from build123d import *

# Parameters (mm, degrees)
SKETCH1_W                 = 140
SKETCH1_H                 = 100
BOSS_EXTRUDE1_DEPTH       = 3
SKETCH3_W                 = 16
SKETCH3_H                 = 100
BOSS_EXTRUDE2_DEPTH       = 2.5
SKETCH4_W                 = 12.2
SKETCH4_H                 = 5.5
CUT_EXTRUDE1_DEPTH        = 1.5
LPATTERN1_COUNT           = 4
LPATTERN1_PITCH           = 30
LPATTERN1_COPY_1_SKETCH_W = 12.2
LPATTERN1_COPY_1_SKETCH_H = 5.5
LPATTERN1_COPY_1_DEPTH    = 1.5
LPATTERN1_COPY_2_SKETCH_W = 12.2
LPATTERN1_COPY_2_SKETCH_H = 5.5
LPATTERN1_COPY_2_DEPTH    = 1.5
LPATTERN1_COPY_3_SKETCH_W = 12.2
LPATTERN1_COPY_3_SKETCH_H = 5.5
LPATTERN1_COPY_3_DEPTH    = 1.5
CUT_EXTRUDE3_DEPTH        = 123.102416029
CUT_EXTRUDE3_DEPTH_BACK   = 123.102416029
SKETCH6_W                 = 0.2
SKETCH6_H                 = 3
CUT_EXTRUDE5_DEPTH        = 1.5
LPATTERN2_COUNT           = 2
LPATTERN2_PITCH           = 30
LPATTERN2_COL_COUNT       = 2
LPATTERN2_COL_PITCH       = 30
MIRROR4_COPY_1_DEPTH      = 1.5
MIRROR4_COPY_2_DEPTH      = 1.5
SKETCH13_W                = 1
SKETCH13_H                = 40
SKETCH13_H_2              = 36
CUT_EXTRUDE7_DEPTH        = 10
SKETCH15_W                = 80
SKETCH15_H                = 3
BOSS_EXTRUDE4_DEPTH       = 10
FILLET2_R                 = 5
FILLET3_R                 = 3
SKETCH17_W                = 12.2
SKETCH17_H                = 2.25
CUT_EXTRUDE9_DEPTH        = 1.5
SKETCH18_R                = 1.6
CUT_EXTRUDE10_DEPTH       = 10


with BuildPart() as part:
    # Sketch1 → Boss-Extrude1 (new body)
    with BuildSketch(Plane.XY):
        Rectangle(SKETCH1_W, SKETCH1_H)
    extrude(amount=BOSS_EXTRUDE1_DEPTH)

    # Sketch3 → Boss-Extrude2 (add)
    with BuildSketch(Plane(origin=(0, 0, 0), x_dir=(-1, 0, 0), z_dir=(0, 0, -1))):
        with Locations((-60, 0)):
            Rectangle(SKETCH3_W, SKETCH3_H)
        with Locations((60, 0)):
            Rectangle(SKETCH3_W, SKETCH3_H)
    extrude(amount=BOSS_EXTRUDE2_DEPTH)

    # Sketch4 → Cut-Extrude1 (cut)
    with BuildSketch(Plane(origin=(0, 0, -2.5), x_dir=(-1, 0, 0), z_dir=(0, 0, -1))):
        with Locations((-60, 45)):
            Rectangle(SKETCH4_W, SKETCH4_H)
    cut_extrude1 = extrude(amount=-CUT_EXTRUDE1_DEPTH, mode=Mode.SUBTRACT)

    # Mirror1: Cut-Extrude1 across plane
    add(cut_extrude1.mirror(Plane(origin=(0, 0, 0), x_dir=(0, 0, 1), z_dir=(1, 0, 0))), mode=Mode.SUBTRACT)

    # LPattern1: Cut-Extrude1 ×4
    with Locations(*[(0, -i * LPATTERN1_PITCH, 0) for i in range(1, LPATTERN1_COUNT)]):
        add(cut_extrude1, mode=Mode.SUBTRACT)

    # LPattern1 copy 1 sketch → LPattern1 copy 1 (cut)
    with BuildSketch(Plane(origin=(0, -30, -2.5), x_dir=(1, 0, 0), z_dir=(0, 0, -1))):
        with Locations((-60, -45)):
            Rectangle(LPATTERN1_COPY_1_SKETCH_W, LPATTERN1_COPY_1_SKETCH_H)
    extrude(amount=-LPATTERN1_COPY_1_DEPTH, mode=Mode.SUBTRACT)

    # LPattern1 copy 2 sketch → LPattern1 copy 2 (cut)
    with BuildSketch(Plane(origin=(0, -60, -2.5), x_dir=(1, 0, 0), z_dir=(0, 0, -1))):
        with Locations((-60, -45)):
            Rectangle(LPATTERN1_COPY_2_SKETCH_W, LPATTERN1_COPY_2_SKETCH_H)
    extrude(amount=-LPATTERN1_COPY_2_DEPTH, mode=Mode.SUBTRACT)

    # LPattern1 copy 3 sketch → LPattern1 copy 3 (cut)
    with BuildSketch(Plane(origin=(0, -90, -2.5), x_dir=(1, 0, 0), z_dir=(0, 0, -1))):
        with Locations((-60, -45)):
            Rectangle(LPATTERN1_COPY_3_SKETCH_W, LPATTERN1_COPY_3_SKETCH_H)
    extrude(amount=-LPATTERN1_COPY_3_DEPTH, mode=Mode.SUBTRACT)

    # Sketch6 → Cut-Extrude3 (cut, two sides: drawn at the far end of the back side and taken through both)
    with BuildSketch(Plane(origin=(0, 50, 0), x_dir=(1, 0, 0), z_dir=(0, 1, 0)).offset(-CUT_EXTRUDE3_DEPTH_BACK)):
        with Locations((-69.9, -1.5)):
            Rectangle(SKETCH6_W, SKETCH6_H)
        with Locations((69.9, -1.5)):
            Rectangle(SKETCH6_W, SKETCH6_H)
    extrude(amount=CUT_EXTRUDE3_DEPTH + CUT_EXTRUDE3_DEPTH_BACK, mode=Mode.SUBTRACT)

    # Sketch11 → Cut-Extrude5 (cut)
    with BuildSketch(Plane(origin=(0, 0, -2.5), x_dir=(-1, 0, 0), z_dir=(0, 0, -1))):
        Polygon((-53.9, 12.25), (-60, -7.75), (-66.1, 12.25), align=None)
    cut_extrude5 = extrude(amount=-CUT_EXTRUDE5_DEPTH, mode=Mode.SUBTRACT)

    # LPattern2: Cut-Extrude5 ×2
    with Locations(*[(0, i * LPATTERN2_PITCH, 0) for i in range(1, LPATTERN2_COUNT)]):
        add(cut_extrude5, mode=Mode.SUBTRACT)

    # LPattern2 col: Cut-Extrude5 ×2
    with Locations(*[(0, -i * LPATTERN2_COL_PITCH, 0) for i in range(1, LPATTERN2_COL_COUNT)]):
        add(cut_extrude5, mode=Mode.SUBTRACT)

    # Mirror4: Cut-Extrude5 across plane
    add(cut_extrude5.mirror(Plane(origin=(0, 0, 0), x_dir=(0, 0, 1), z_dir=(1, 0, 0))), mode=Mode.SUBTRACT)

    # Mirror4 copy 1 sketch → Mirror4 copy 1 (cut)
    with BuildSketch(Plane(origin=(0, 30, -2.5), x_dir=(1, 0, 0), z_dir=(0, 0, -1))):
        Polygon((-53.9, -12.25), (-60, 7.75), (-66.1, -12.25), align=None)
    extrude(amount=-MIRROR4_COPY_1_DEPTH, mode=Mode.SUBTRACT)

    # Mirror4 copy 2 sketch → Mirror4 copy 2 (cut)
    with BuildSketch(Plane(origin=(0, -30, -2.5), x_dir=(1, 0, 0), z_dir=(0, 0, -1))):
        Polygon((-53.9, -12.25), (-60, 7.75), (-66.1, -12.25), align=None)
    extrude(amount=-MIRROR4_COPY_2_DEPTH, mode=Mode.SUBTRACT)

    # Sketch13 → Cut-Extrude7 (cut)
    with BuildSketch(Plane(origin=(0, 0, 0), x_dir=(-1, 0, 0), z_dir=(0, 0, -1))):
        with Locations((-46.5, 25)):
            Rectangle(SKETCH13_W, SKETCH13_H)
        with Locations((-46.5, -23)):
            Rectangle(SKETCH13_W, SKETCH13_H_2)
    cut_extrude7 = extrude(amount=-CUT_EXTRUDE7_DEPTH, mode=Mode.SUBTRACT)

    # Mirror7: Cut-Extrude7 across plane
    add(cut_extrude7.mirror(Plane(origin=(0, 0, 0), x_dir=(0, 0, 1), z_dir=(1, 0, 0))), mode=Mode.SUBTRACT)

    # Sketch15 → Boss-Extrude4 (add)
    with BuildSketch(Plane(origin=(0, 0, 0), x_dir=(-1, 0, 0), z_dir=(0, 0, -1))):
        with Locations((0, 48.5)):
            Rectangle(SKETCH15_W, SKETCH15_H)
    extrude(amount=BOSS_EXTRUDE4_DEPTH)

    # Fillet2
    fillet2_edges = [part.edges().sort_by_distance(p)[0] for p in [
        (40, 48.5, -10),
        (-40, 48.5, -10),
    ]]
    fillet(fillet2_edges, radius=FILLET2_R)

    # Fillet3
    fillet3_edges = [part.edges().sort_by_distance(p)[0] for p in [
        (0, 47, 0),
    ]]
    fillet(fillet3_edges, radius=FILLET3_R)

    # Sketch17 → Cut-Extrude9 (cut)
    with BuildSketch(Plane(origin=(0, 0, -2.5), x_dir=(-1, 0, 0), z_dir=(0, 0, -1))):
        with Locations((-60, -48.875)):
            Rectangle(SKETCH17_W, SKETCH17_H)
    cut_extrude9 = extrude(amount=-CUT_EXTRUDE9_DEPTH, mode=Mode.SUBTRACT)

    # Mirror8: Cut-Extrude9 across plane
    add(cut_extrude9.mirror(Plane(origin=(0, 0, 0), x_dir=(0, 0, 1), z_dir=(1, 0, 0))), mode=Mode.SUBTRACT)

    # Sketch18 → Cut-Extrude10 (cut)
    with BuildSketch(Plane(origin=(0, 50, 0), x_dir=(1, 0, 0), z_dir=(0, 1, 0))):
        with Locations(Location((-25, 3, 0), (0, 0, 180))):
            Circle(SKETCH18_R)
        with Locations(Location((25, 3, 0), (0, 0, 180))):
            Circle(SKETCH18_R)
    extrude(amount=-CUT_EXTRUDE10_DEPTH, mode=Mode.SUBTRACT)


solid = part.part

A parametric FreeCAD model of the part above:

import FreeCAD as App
import Part
import Sketcher
Q = App.Units.Quantity


def edges_at(feature, points):
    """Names of the edges that pass closest to the given points."""
    edges = feature.Shape.Edges
    near = lambda p: min(range(len(edges)), key=lambda i: edges[i].distToShape(Part.Vertex(*p))[0])
    return sorted({f"Edge{near(p) + 1}" for p in points})


def add_polygon(sketch, points):
    """Adds a closed chain of lines whose ends are joined by coincident constraints."""
    first, n = sketch.GeometryCount, len(points)
    for a, b in zip(points, points[1:] + points[:1]):
        sketch.addGeometry(Part.LineSegment(App.Vector(*a, 0), App.Vector(*b, 0)), False)
    for i in range(n):
        sketch.addConstraint(Sketcher.Constraint("Coincident", first + i, 2, first + (i + 1) % n, 1))

doc = App.newDocument("Part")
body = doc.addObject("PartDesign::Body", "Body")

# Sketch on XY plane
sketch1 = body.newObject("Sketcher::SketchObject", "Sketch")
sketch1.AttachmentSupport = (doc.getObject("XY_Plane"), [""])
sketch1.MapMode = "FlatFace"
add_polygon(sketch1, [(-70, 50), (-70, -50), (70, -50), (70, 50)])  # lines 0-3
sketch1.addConstraint([
    Sketcher.Constraint("Vertical", 0),
    Sketcher.Constraint("Horizontal", 1),
    Sketcher.Constraint("Vertical", 2),
    Sketcher.Constraint("Horizontal", 3),
    Sketcher.Constraint("Symmetric", 0, 2, 2, 2, -1, 1),
    Sketcher.Constraint("DistanceX", 1, 1, 1, 2, Q("140 mm")),
    Sketcher.Constraint("DistanceY", 0, 2, 0, 1, Q("100 mm")),
])
pad1 = body.newObject("PartDesign::Pad", "Pad")
pad1.Profile = sketch1
pad1.Length = 3

# Sketch on XY plane
sketch2 = body.newObject("Sketcher::SketchObject", "Sketch001")
sketch2.AttachmentSupport = (doc.getObject("XY_Plane"), [""])
sketch2.MapMode = "FlatFace"
add_polygon(sketch2, [(68, 50), (68, -50), (52, -50), (52, 50)])  # lines 0-3
add_polygon(sketch2, [(-52, 50), (-52, -50), (-68, -50), (-68, 50)])  # lines 4-7
sketch2.addConstraint([
    Sketcher.Constraint("Vertical", 0),
    Sketcher.Constraint("Horizontal", 1),
    Sketcher.Constraint("Vertical", 2),
    Sketcher.Constraint("Horizontal", 3),
    Sketcher.Constraint("Vertical", 4),
    Sketcher.Constraint("Horizontal", 5),
    Sketcher.Constraint("Vertical", 6),
    Sketcher.Constraint("Horizontal", 7),
    Sketcher.Constraint("Symmetric", 2, 2, 4, 2, -1, 1),
    Sketcher.Constraint("Symmetric", 0, 2, 6, 2, -1, 1),
    Sketcher.Constraint("Horizontal", 1, 2, 4, 2),
    Sketcher.Constraint("DistanceX", 1, 2, 1, 1, Q("16 mm")),
    Sketcher.Constraint("DistanceY", 0, 2, 0, 1, Q("100 mm")),
    Sketcher.Constraint("DistanceX", -1, 1, 0, 2, Q("68 mm")),
])
pad2 = body.newObject("PartDesign::Pad", "Pad001")
pad2.Profile = sketch2
pad2.Length = 2.5
pad2.Reversed = True

# Sketch on XY plane
sketch3 = body.newObject("Sketcher::SketchObject", "Sketch002")
sketch3.AttachmentSupport = (doc.getObject("XY_Plane"), [""])
sketch3.MapMode = "FlatFace"
sketch3.AttachmentOffset = App.Placement(App.Vector(0, 0, -2.5), App.Rotation())
add_polygon(sketch3, [(66.1, 47.75), (66.1, 42.25), (53.9, 42.25), (53.9, 47.75)])  # lines 0-3
sketch3.addConstraint([
    Sketcher.Constraint("Vertical", 0),
    Sketcher.Constraint("Horizontal", 1),
    Sketcher.Constraint("Vertical", 2),
    Sketcher.Constraint("Horizontal", 3),
    Sketcher.Constraint("DistanceX", 1, 2, 1, 1, Q("12.2 mm")),
    Sketcher.Constraint("DistanceY", 0, 2, 0, 1, Q("5.5 mm")),
    Sketcher.Constraint("DistanceX", -1, 1, 0, 2, Q("66.1 mm")),
    Sketcher.Constraint("DistanceY", -1, 1, 0, 2, Q("42.25 mm")),
])
pocket1 = body.newObject("PartDesign::Pocket", "Pocket")
pocket1.Profile = sketch3
pocket1.Length = 1.5
pocket1.Reversed = True
doc.recompute()

mirrored = body.newObject("PartDesign::Mirrored", "Mirrored")
mirrored.Originals = [pocket1]
mirrored.MirrorPlane = (doc.getObject("YZ_Plane"), [""])
body.Tip = mirrored
doc.recompute()

linearpattern = body.newObject("PartDesign::LinearPattern", "LinearPattern")
linearpattern.Originals = [pocket1]
linearpattern.Direction = (doc.getObject("Y_Axis"), [""])
linearpattern.Mode = "offset"
linearpattern.Offset = 30
linearpattern.Occurrences = 4
linearpattern.Reversed = True
body.Tip = linearpattern

# Sketch on XY plane
sketch4 = body.newObject("Sketcher::SketchObject", "Sketch003")
sketch4.AttachmentSupport = (doc.getObject("XY_Plane"), [""])
sketch4.MapMode = "FlatFace"
sketch4.AttachmentOffset = App.Placement(App.Vector(0, 0, -2.5), App.Rotation())
add_polygon(sketch4, [(-66.1, 12.25), (-66.1, 17.75), (-53.9, 17.75), (-53.9, 12.25)])  # lines 0-3
sketch4.addConstraint([
    Sketcher.Constraint("Vertical", 0),
    Sketcher.Constraint("Horizontal", 1),
    Sketcher.Constraint("Vertical", 2),
    Sketcher.Constraint("Horizontal", 3),
    Sketcher.Constraint("DistanceX", 1, 1, 1, 2, Q("12.2 mm")),
    Sketcher.Constraint("DistanceY", 0, 1, 0, 2, Q("5.5 mm")),
    Sketcher.Constraint("DistanceX", 0, 2, -1, 1, Q("66.1 mm")),
    Sketcher.Constraint("DistanceY", -1, 1, 0, 2, Q("17.75 mm")),
])
pocket2 = body.newObject("PartDesign::Pocket", "Pocket001")
pocket2.Profile = sketch4
pocket2.Length = 1.5
pocket2.Reversed = True

# Sketch on XY plane
sketch5 = body.newObject("Sketcher::SketchObject", "Sketch004")
sketch5.AttachmentSupport = (doc.getObject("XY_Plane"), [""])
sketch5.MapMode = "FlatFace"
sketch5.AttachmentOffset = App.Placement(App.Vector(0, 0, -2.5), App.Rotation())
add_polygon(sketch5, [(-66.1, -17.75), (-66.1, -12.25), (-53.9, -12.25), (-53.9, -17.75)])  # lines 0-3
sketch5.addConstraint([
    Sketcher.Constraint("Vertical", 0),
    Sketcher.Constraint("Horizontal", 1),
    Sketcher.Constraint("Vertical", 2),
    Sketcher.Constraint("Horizontal", 3),
    Sketcher.Constraint("DistanceX", 1, 1, 1, 2, Q("12.2 mm")),
    Sketcher.Constraint("DistanceY", 0, 1, 0, 2, Q("5.5 mm")),
    Sketcher.Constraint("DistanceX", 0, 2, -1, 1, Q("66.1 mm")),
    Sketcher.Constraint("DistanceY", 0, 2, -1, 1, Q("12.25 mm")),
])
pocket3 = body.newObject("PartDesign::Pocket", "Pocket002")
pocket3.Profile = sketch5
pocket3.Length = 1.5
pocket3.Reversed = True

# Sketch on XY plane
sketch6 = body.newObject("Sketcher::SketchObject", "Sketch005")
sketch6.AttachmentSupport = (doc.getObject("XY_Plane"), [""])
sketch6.MapMode = "FlatFace"
sketch6.AttachmentOffset = App.Placement(App.Vector(0, 0, -2.5), App.Rotation())
add_polygon(sketch6, [(-66.1, -47.75), (-66.1, -42.25), (-53.9, -42.25), (-53.9, -47.75)])  # lines 0-3
sketch6.addConstraint([
    Sketcher.Constraint("Vertical", 0),
    Sketcher.Constraint("Horizontal", 1),
    Sketcher.Constraint("Vertical", 2),
    Sketcher.Constraint("Horizontal", 3),
    Sketcher.Constraint("DistanceX", 1, 1, 1, 2, Q("12.2 mm")),
    Sketcher.Constraint("DistanceY", 0, 1, 0, 2, Q("5.5 mm")),
    Sketcher.Constraint("DistanceX", 0, 2, -1, 1, Q("66.1 mm")),
    Sketcher.Constraint("DistanceY", 0, 2, -1, 1, Q("42.25 mm")),
])
pocket4 = body.newObject("PartDesign::Pocket", "Pocket003")
pocket4.Profile = sketch6
pocket4.Length = 1.5
pocket4.Reversed = True

# Sketch on XZ plane
sketch7 = body.newObject("Sketcher::SketchObject", "Sketch006")
sketch7.AttachmentSupport = (doc.getObject("XZ_Plane"), [""])
sketch7.MapMode = "FlatFace"
sketch7.AttachmentOffset = App.Placement(App.Vector(0, 0, -50), App.Rotation())
add_polygon(sketch7, [(-70, 0), (-70, 3), (-69.8, 3), (-69.8, 0)])  # lines 0-3
add_polygon(sketch7, [(69.8, 0), (69.8, 3), (70, 3), (70, 0)])  # lines 4-7
sketch7.addConstraint([
    Sketcher.Constraint("Vertical", 0),
    Sketcher.Constraint("Horizontal", 1),
    Sketcher.Constraint("Vertical", 2),
    Sketcher.Constraint("Horizontal", 3),
    Sketcher.Constraint("Vertical", 4),
    Sketcher.Constraint("Horizontal", 5),
    Sketcher.Constraint("Vertical", 6),
    Sketcher.Constraint("Horizontal", 7),
    Sketcher.Constraint("Symmetric", 3, 2, 6, 2, -1, 1),
    Sketcher.Constraint("Symmetric", 1, 2, 4, 2, -2),
    Sketcher.Constraint("PointOnObject", 2, 2, -1),
    Sketcher.Constraint("DistanceY", 0, 1, 0, 2, Q("3 mm")),
    Sketcher.Constraint("DistanceX", 1, 1, 1, 2, Q("0.2 mm")),
    Sketcher.Constraint("DistanceX", 0, 2, -1, 1, Q("70 mm")),
])
pocket5 = body.newObject("PartDesign::Pocket", "Pocket004")
pocket5.Profile = sketch7
pocket5.Type = "ThroughAll"
pocket5.Midplane = True

# Sketch on XY plane
sketch8 = body.newObject("Sketcher::SketchObject", "Sketch007")
sketch8.AttachmentSupport = (doc.getObject("XY_Plane"), [""])
sketch8.MapMode = "FlatFace"
sketch8.AttachmentOffset = App.Placement(App.Vector(0, 0, -2.5), App.Rotation())
add_polygon(sketch8, [(60, -7.75), (53.9, 12.25), (66.1, 12.25)])  # lines 0-2
sketch8.addConstraint([
    Sketcher.Constraint("Horizontal", 1),
    Sketcher.Constraint("Equal", 0, 2),
    Sketcher.Constraint("DistanceX", 1, 1, 1, 2, Q("12.2 mm")),
    Sketcher.Constraint("DistanceX", -1, 1, 2, 2, Q("60 mm")),
    Sketcher.Constraint("DistanceY", 2, 2, 1, 2, Q("20 mm")),
    Sketcher.Constraint("DistanceY", -1, 1, 0, 2, Q("12.25 mm")),
])
pocket6 = body.newObject("PartDesign::Pocket", "Pocket005")
pocket6.Profile = sketch8
pocket6.Length = 1.5
pocket6.Reversed = True
doc.recompute()

linearpattern2 = body.newObject("PartDesign::LinearPattern", "LinearPattern001")
linearpattern2.Originals = [pocket6]
linearpattern2.Direction = (doc.getObject("Y_Axis"), [""])
linearpattern2.Mode = "offset"
linearpattern2.Offset = 30
linearpattern2.Occurrences = 2
body.Tip = linearpattern2
doc.recompute()

linearpattern3 = body.newObject("PartDesign::LinearPattern", "LinearPattern002")
linearpattern3.Originals = [pocket6]
linearpattern3.Direction = (doc.getObject("Y_Axis"), [""])
linearpattern3.Mode = "offset"
linearpattern3.Offset = 30
linearpattern3.Occurrences = 2
linearpattern3.Reversed = True
body.Tip = linearpattern3
doc.recompute()

mirrored2 = body.newObject("PartDesign::Mirrored", "Mirrored001")
mirrored2.Originals = [pocket6]
mirrored2.MirrorPlane = (doc.getObject("YZ_Plane"), [""])
body.Tip = mirrored2

# Sketch on XY plane
sketch9 = body.newObject("Sketcher::SketchObject", "Sketch008")
sketch9.AttachmentSupport = (doc.getObject("XY_Plane"), [""])
sketch9.MapMode = "FlatFace"
sketch9.AttachmentOffset = App.Placement(App.Vector(0, 0, -2.5), App.Rotation())
add_polygon(sketch9, [(-53.9, 42.25), (-60, 22.25), (-66.1, 42.25)])  # lines 0-2
sketch9.addConstraint([
    Sketcher.Constraint("Horizontal", 2),
    Sketcher.Constraint("Equal", 0, 1),
    Sketcher.Constraint("DistanceX", 2, 1, 2, 2, Q("12.2 mm")),
    Sketcher.Constraint("DistanceX", 0, 2, -1, 1, Q("60 mm")),
    Sketcher.Constraint("DistanceY", 0, 2, 1, 2, Q("20 mm")),
    Sketcher.Constraint("DistanceY", -1, 1, 0, 2, Q("22.25 mm")),
])
pocket7 = body.newObject("PartDesign::Pocket", "Pocket006")
pocket7.Profile = sketch9
pocket7.Length = 1.5
pocket7.Reversed = True

# Sketch on XY plane
sketch10 = body.newObject("Sketcher::SketchObject", "Sketch009")
sketch10.AttachmentSupport = (doc.getObject("XY_Plane"), [""])
sketch10.MapMode = "FlatFace"
sketch10.AttachmentOffset = App.Placement(App.Vector(0, 0, -2.5), App.Rotation())
add_polygon(sketch10, [(-53.9, -17.75), (-60, -37.75), (-66.1, -17.75)])  # lines 0-2
sketch10.addConstraint([
    Sketcher.Constraint("Horizontal", 2),
    Sketcher.Constraint("Equal", 0, 1),
    Sketcher.Constraint("DistanceX", 2, 1, 2, 2, Q("12.2 mm")),
    Sketcher.Constraint("DistanceX", 0, 2, -1, 1, Q("60 mm")),
    Sketcher.Constraint("DistanceY", 0, 2, 1, 2, Q("20 mm")),
    Sketcher.Constraint("DistanceY", 0, 2, -1, 1, Q("37.75 mm")),
])
pocket8 = body.newObject("PartDesign::Pocket", "Pocket007")
pocket8.Profile = sketch10
pocket8.Length = 1.5
pocket8.Reversed = True

# Sketch on XY plane
sketch11 = body.newObject("Sketcher::SketchObject", "Sketch010")
sketch11.AttachmentSupport = (doc.getObject("XY_Plane"), [""])
sketch11.MapMode = "FlatFace"
add_polygon(sketch11, [(47, 45), (47, 5), (46, 5), (46, 45)])  # lines 0-3
add_polygon(sketch11, [(47, -5), (47, -41), (46, -41), (46, -5)])  # lines 4-7
sketch11.addConstraint([
    Sketcher.Constraint("Vertical", 0),
    Sketcher.Constraint("Horizontal", 1),
    Sketcher.Constraint("Vertical", 2),
    Sketcher.Constraint("Horizontal", 3),
    Sketcher.Constraint("Vertical", 4),
    Sketcher.Constraint("Horizontal", 5),
    Sketcher.Constraint("Vertical", 6),
    Sketcher.Constraint("Horizontal", 7),
    Sketcher.Constraint("Symmetric", 1, 2, 6, 2, -1),
    Sketcher.Constraint("Vertical", 3, 2, 4, 2),
    Sketcher.Constraint("DistanceX", 1, 2, 1, 1, Q("1 mm")),
    Sketcher.Constraint("DistanceY", 0, 2, 0, 1, Q("40 mm")),
    Sketcher.Constraint("DistanceY", 4, 2, 4, 1, Q("36 mm")),
    Sketcher.Constraint("DistanceX", -1, 1, 0, 2, Q("47 mm")),
    Sketcher.Constraint("DistanceY", -1, 1, 0, 2, Q("5 mm")),
])
pocket9 = body.newObject("PartDesign::Pocket", "Pocket008")
pocket9.Profile = sketch11
pocket9.Length = 10
pocket9.Reversed = True
doc.recompute()

mirrored3 = body.newObject("PartDesign::Mirrored", "Mirrored002")
mirrored3.Originals = [pocket9]
mirrored3.MirrorPlane = (doc.getObject("YZ_Plane"), [""])
body.Tip = mirrored3

# Sketch on XY plane
sketch12 = body.newObject("Sketcher::SketchObject", "Sketch011")
sketch12.AttachmentSupport = (doc.getObject("XY_Plane"), [""])
sketch12.MapMode = "FlatFace"
add_polygon(sketch12, [(40, 50), (40, 47), (-40, 47), (-40, 50)])  # lines 0-3
sketch12.addConstraint([
    Sketcher.Constraint("Vertical", 0),
    Sketcher.Constraint("Horizontal", 1),
    Sketcher.Constraint("Vertical", 2),
    Sketcher.Constraint("Horizontal", 3),
    Sketcher.Constraint("DistanceX", 1, 2, 1, 1, Q("80 mm")),
    Sketcher.Constraint("DistanceY", 0, 2, 0, 1, Q("3 mm")),
    Sketcher.Constraint("DistanceX", -1, 1, 0, 2, Q("40 mm")),
    Sketcher.Constraint("DistanceY", -1, 1, 0, 2, Q("47 mm")),
])
pad3 = body.newObject("PartDesign::Pad", "Pad002")
pad3.Profile = sketch12
pad3.Length = 10
pad3.Reversed = True
doc.recompute()

fillet = body.newObject("PartDesign::Fillet", "Fillet")
fillet.Base = (pad3, edges_at(pad3, [(40, 48.5, -10), (-40, 48.5, -10)]))
fillet.Radius = 5
doc.recompute()

fillet2 = body.newObject("PartDesign::Fillet", "Fillet001")
fillet2.Base = (fillet, edges_at(fillet, [(0, 47, 0)]))
fillet2.Radius = 3

# Sketch on XY plane
sketch13 = body.newObject("Sketcher::SketchObject", "Sketch012")
sketch13.AttachmentSupport = (doc.getObject("XY_Plane"), [""])
sketch13.MapMode = "FlatFace"
sketch13.AttachmentOffset = App.Placement(App.Vector(0, 0, -2.5), App.Rotation())
add_polygon(sketch13, [(66.1, -47.75), (66.1, -50), (53.9, -50), (53.9, -47.75)])  # lines 0-3
sketch13.addConstraint([
    Sketcher.Constraint("Vertical", 0),
    Sketcher.Constraint("Horizontal", 1),
    Sketcher.Constraint("Vertical", 2),
    Sketcher.Constraint("Horizontal", 3),
    Sketcher.Constraint("DistanceX", 1, 2, 1, 1, Q("12.2 mm")),
    Sketcher.Constraint("DistanceY", 0, 2, -1, 1, Q("50 mm")),
    Sketcher.Constraint("DistanceY", 0, 2, 0, 1, Q("2.25 mm")),
    Sketcher.Constraint("DistanceX", -1, 1, 0, 2, Q("66.1 mm")),
])
pocket10 = body.newObject("PartDesign::Pocket", "Pocket009")
pocket10.Profile = sketch13
pocket10.Length = 1.5
pocket10.Reversed = True
doc.recompute()

mirrored4 = body.newObject("PartDesign::Mirrored", "Mirrored003")
mirrored4.Originals = [pocket10]
mirrored4.MirrorPlane = (doc.getObject("YZ_Plane"), [""])
body.Tip = mirrored4

# Sketch on XZ plane
sketch14 = body.newObject("Sketcher::SketchObject", "Sketch013")
sketch14.AttachmentSupport = (doc.getObject("XZ_Plane"), [""])
sketch14.MapMode = "FlatFace"
sketch14.AttachmentOffset = App.Placement(App.Vector(0, 0, -50), App.Rotation())
sketch14.addGeometry([
    Part.Circle(App.Vector(-25, -3, 0), App.Vector(0, 0, 1), 1.6),
    Part.Circle(App.Vector(25, -3, 0), App.Vector(0, 0, 1), 1.6),
], False)
sketch14.addConstraint([
    Sketcher.Constraint("Equal", 0, 1),
    Sketcher.Constraint("Symmetric", 0, 3, 1, 3, -2),
    Sketcher.Constraint("Diameter", 0, Q("3.2 mm")),
    Sketcher.Constraint("DistanceX", 0, 3, -1, 1, Q("25 mm")),
    Sketcher.Constraint("DistanceY", 0, 3, -1, 1, Q("3 mm")),
])
pocket11 = body.newObject("PartDesign::Pocket", "Pocket010")
pocket11.Profile = sketch14
pocket11.Length = 10
pocket11.Reversed = True

doc.recompute()
